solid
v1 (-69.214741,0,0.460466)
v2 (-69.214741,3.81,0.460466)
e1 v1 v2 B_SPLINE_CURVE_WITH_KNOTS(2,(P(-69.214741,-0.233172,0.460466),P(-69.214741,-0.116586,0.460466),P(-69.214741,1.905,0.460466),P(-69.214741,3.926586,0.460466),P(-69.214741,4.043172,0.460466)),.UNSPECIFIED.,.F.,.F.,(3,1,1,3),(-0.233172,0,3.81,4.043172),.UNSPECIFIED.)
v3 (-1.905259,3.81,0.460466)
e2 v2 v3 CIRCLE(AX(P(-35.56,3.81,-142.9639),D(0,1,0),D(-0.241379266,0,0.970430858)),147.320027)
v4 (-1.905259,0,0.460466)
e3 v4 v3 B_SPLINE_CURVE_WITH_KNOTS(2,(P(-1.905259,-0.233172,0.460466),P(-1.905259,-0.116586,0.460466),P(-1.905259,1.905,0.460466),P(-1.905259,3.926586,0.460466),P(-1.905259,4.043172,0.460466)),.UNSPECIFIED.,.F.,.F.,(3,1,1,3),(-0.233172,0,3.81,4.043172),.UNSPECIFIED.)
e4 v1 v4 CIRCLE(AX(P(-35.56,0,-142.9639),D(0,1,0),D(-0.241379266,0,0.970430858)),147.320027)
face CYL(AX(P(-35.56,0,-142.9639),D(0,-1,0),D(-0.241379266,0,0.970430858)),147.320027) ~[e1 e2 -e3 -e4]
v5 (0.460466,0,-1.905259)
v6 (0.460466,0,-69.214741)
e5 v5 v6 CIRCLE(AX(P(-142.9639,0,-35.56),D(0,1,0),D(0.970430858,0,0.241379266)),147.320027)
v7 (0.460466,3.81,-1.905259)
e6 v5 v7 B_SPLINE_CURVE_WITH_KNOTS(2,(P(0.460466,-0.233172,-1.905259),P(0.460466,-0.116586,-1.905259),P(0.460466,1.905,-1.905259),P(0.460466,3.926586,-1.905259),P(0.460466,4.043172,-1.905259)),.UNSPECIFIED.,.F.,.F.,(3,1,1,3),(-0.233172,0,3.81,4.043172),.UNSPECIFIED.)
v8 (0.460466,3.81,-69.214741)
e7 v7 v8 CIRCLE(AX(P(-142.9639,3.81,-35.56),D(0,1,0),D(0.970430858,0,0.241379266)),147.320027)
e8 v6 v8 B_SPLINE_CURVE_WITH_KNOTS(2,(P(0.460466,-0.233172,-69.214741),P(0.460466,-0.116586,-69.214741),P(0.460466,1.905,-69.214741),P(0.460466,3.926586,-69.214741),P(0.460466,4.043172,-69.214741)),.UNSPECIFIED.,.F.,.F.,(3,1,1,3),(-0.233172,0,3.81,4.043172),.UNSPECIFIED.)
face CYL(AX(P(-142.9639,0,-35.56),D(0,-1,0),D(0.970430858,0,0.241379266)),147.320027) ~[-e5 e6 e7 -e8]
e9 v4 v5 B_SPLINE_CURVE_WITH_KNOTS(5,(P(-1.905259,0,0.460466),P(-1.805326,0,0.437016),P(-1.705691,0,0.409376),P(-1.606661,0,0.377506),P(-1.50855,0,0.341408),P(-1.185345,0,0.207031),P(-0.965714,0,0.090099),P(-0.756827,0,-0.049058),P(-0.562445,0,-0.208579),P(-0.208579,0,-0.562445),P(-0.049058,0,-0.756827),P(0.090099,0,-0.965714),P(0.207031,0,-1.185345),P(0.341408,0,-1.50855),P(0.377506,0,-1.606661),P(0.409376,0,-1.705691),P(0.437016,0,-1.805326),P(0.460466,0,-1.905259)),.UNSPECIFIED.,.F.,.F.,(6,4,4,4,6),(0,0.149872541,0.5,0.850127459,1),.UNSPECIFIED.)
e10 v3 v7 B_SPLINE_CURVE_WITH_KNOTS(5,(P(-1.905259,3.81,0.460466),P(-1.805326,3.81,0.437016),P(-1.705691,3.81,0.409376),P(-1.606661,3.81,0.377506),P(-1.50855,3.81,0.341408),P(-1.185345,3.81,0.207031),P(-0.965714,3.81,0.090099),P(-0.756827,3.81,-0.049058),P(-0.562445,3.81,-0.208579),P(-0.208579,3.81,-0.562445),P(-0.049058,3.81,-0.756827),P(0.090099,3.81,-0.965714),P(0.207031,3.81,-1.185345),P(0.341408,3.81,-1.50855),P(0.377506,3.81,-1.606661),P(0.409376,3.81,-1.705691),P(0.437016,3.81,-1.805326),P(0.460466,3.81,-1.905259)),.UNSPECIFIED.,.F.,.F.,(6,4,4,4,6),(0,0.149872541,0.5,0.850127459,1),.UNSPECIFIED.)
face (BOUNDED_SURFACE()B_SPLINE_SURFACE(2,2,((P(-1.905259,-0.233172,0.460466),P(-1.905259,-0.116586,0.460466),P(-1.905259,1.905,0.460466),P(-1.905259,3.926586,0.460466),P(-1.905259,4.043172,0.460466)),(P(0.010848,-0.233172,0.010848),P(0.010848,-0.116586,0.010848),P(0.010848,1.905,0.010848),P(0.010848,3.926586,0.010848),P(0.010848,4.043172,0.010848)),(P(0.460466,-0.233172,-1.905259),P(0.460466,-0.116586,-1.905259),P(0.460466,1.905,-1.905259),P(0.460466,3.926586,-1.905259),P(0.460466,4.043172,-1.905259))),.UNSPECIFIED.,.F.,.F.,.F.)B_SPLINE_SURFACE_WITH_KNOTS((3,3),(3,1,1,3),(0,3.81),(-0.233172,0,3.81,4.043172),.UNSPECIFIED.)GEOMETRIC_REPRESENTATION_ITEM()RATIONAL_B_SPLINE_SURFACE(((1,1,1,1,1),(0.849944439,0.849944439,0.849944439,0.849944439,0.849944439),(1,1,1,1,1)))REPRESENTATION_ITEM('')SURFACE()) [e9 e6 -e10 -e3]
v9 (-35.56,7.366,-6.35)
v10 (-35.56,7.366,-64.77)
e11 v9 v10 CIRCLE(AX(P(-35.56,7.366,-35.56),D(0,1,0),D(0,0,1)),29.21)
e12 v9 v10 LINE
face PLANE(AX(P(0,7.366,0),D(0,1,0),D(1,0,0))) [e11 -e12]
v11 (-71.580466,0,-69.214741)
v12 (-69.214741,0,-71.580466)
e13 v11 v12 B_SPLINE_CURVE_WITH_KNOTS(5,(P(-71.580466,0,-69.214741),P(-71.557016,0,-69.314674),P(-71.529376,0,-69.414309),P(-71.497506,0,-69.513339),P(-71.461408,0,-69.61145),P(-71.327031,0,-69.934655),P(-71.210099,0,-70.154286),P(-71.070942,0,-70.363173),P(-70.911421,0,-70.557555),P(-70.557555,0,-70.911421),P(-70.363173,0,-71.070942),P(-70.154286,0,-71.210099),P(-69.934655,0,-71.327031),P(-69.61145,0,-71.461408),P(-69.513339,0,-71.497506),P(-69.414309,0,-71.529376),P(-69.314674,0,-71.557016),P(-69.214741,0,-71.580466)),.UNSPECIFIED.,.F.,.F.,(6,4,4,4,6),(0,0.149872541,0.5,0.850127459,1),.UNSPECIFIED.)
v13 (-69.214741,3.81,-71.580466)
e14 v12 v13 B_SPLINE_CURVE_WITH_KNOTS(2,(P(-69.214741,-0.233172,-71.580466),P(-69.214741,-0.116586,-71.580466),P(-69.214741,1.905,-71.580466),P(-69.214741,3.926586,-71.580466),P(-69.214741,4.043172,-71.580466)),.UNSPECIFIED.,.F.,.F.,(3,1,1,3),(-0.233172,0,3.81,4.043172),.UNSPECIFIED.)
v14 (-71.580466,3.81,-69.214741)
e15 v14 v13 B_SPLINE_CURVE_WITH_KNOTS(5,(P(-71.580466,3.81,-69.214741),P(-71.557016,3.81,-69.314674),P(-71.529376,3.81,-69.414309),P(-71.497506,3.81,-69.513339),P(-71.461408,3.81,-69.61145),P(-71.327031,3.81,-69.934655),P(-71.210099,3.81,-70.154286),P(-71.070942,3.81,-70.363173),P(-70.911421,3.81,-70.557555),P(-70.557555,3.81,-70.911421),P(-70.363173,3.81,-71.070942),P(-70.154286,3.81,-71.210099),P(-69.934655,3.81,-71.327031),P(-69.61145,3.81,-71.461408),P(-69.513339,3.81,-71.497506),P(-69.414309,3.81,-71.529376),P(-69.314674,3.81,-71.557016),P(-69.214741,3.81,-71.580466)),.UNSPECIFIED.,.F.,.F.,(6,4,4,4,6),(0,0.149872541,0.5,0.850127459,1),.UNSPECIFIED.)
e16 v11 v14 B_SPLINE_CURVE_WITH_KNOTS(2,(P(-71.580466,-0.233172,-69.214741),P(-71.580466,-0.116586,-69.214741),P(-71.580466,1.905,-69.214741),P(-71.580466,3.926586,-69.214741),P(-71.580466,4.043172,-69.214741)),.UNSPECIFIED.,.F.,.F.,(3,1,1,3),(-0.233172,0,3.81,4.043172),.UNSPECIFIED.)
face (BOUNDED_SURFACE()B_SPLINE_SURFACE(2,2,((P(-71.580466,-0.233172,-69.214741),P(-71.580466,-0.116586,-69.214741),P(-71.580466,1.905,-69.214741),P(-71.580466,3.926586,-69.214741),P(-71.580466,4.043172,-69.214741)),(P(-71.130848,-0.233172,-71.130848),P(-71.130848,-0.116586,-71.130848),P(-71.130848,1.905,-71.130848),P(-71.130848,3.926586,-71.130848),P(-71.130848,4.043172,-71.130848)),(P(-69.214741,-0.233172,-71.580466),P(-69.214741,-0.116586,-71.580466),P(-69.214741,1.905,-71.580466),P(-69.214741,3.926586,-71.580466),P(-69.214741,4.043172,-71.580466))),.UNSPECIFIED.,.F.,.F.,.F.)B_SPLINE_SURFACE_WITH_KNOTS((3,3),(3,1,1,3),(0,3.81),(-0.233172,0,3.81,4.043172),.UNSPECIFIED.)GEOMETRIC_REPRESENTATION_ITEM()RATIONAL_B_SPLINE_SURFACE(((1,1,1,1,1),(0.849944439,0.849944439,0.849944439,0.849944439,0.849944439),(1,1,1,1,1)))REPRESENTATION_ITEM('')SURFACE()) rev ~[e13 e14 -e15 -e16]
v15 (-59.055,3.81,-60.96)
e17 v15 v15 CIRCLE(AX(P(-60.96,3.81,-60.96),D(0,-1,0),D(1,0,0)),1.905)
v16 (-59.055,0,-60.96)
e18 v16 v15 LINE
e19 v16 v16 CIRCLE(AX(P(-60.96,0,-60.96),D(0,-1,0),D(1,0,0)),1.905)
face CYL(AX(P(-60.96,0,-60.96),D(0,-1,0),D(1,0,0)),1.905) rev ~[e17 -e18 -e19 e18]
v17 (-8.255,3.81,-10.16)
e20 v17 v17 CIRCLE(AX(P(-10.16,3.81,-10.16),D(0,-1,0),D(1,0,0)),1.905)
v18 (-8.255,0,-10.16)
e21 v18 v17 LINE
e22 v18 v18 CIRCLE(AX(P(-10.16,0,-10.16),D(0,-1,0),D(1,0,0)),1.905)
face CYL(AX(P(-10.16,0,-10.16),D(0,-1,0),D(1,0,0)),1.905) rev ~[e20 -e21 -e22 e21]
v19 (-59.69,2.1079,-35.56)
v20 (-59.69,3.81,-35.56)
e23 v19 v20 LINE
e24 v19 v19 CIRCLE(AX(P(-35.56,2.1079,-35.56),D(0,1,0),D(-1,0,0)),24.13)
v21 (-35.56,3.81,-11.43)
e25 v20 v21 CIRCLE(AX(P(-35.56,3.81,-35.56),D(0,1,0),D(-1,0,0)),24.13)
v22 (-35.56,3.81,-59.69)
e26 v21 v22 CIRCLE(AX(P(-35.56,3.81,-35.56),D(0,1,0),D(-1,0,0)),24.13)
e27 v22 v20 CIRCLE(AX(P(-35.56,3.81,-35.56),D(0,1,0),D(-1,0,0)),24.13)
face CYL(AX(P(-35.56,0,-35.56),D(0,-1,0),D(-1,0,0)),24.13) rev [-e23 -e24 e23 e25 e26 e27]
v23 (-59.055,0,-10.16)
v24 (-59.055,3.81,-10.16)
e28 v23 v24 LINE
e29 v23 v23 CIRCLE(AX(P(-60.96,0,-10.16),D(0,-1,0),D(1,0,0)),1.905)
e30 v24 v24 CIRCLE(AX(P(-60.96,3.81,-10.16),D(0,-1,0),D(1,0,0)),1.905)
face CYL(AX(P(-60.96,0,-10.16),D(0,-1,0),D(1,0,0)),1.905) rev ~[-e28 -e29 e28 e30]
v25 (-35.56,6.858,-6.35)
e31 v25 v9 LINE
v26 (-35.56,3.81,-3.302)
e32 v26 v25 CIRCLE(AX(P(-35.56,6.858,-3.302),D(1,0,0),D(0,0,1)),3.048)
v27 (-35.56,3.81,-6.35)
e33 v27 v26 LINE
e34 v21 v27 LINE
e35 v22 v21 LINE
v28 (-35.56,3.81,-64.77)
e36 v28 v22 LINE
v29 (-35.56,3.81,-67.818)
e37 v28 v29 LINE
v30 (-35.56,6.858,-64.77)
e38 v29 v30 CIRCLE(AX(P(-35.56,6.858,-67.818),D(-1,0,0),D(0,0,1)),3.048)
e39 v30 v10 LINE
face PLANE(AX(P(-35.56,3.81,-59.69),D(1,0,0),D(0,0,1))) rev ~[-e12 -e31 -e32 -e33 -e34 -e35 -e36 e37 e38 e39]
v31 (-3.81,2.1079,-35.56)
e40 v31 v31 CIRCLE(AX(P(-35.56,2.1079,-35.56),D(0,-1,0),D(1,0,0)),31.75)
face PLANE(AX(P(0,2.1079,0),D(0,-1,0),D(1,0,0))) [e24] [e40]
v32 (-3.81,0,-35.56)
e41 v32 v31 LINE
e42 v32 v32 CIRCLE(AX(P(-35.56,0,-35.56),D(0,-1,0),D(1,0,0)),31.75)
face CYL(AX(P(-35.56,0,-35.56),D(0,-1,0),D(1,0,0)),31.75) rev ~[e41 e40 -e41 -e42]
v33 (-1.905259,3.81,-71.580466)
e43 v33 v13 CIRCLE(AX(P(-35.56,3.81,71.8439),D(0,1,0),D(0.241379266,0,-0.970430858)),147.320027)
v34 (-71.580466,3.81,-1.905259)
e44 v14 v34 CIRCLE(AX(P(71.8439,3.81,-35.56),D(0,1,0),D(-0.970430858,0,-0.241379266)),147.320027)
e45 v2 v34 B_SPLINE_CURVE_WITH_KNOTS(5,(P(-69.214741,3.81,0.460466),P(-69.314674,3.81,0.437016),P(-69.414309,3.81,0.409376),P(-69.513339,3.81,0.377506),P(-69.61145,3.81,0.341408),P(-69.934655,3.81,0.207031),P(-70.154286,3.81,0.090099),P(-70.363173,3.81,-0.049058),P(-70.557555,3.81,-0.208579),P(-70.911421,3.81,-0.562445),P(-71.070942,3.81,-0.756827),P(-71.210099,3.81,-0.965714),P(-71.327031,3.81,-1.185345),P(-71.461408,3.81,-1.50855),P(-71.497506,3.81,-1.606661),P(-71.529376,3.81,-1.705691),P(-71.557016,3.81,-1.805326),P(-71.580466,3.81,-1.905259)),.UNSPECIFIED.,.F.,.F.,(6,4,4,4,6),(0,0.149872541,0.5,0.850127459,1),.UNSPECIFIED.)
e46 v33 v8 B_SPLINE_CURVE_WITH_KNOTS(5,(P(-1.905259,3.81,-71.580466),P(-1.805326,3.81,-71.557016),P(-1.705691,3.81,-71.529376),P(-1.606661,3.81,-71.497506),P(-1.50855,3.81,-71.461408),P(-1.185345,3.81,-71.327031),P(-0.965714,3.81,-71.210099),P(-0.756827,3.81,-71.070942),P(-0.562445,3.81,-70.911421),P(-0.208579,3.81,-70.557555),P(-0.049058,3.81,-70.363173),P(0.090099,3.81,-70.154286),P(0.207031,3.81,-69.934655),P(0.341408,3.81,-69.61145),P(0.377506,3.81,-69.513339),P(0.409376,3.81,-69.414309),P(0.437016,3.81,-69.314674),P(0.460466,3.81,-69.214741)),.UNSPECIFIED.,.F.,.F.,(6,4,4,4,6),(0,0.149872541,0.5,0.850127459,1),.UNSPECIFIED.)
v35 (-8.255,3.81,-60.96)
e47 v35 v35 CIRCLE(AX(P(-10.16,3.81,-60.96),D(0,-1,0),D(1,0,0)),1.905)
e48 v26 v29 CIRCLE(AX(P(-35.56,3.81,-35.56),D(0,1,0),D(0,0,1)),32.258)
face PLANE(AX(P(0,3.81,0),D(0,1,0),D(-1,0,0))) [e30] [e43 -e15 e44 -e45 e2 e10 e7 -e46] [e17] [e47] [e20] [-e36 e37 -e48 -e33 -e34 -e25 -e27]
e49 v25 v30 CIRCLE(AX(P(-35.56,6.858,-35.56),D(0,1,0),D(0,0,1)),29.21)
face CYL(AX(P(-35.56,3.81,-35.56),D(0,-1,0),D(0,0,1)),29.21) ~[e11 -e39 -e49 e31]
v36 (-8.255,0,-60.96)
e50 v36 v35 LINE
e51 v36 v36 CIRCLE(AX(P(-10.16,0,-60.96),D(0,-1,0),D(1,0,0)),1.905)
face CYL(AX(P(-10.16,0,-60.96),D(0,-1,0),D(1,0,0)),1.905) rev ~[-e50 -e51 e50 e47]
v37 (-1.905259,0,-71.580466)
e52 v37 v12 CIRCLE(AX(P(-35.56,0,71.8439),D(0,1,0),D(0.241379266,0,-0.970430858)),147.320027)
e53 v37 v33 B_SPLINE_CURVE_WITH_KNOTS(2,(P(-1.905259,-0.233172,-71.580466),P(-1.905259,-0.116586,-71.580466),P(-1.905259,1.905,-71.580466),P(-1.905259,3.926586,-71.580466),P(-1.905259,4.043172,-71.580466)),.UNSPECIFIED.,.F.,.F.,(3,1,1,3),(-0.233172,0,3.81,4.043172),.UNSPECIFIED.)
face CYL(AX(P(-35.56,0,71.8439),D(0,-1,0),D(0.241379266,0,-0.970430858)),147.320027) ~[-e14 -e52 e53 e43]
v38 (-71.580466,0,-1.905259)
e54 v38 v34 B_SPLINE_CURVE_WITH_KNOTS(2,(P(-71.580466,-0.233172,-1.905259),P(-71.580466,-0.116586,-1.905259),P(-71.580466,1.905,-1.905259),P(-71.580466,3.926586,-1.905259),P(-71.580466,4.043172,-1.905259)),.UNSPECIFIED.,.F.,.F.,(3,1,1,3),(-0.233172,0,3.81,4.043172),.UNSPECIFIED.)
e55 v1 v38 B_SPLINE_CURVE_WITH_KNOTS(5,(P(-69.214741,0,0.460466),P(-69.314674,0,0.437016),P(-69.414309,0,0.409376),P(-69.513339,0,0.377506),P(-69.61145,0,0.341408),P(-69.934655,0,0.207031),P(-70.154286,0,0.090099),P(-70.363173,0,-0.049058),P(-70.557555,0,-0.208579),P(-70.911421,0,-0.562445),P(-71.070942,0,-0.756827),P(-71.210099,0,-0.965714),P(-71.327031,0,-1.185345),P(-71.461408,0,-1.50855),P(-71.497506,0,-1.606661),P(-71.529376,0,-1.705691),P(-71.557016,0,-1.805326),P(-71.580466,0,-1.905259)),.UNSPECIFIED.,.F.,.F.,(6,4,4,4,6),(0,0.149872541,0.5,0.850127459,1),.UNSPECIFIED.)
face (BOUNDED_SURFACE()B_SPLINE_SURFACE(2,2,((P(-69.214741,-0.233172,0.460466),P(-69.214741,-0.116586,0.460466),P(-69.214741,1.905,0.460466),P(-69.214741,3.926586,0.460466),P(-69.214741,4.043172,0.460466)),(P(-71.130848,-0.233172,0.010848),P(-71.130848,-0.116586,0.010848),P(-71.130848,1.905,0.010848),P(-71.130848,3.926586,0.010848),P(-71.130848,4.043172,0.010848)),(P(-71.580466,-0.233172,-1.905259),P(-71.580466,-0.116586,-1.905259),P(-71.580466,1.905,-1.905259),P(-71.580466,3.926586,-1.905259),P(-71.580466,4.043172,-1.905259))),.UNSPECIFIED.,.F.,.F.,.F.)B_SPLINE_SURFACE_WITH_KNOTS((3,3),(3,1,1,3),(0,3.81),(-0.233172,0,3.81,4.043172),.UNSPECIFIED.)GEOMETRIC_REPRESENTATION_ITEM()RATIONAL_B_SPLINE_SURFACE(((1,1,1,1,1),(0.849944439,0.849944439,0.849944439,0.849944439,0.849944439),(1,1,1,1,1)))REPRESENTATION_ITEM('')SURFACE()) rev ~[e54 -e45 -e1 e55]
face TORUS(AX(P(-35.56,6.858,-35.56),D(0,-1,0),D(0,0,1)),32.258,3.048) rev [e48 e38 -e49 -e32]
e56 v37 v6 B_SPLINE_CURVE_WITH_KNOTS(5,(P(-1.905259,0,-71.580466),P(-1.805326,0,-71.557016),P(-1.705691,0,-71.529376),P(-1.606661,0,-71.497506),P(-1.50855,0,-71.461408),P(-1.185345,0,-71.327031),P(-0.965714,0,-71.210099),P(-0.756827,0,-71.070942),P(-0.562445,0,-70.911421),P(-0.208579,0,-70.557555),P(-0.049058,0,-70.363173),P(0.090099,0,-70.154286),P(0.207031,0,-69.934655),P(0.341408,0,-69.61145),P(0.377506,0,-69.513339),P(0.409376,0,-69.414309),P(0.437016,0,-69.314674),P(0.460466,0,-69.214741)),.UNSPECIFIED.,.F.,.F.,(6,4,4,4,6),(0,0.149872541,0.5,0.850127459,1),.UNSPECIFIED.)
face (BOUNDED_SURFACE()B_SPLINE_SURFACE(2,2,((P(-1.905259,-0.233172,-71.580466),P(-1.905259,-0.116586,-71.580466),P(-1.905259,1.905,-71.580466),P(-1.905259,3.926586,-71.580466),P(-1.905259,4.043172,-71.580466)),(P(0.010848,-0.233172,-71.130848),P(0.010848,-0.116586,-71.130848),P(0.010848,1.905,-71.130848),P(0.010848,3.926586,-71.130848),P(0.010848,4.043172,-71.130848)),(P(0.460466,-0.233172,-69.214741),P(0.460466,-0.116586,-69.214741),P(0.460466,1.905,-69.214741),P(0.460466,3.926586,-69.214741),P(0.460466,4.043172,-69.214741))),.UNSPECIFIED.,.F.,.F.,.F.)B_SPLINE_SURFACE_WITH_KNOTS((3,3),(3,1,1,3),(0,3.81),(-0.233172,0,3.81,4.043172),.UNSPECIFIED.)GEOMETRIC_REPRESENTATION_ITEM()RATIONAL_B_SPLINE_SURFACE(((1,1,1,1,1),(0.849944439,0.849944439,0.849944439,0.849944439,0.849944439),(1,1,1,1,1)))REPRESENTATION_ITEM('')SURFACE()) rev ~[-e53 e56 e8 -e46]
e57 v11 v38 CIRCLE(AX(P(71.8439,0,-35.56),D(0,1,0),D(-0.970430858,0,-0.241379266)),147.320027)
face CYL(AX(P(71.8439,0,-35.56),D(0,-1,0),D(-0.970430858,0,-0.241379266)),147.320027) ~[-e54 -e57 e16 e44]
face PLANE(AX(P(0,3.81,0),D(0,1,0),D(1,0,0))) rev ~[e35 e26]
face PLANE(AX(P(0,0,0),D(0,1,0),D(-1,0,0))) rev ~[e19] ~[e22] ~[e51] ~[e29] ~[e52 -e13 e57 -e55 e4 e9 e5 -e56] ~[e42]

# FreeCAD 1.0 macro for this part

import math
import FreeCAD as App
import Part
import Sketcher
Q = App.Units.Quantity


def edges_at(feature, points):
    """Names of the edges that pass closest to the given points."""
    edges = feature.Shape.Edges
    near = lambda p: min(range(len(edges)), key=lambda i: edges[i].distToShape(Part.Vertex(*p))[0])
    return sorted({f"Edge{near(p) + 1}" for p in points})

doc = App.newDocument("Part")
body = doc.addObject("PartDesign::Body", "Body")

# Sketch on XZ plane
sketch1 = doc.addObject("Sketcher::SketchObject", "Sketch")
body.addObject(sketch1)
sketch1.AttachmentSupport = (doc.XZ_Plane, [""])
sketch1.MapMode = "FlatFace"
sketch1.addGeometry([
    Part.ArcOfCircle(Part.Circle(App.Vector(-36, -143, 0), App.Vector(0, 0, 1), 147), math.radians(76), math.radians(104)),  # 0
    Part.ArcOfCircle(Part.Circle(App.Vector(-143, -36, 0), App.Vector(0, 0, 1), 147), math.radians(-14), math.radians(14)),  # 1
    Part.ArcOfCircle(Part.Circle(App.Vector(-36, 72, 0), App.Vector(0, 0, 1), 147), math.radians(-104), math.radians(-76)),  # 2
    Part.ArcOfCircle(Part.Circle(App.Vector(72, -36, 0), App.Vector(0, 0, 1), 147), math.radians(166), math.radians(194)),  # 3
    Part.Circle(App.Vector(-36, -36, 0), App.Vector(0, 0, 1), 24),  # 4
], False)
sketch1.addConstraint([
    Sketcher.Constraint("Coincident", 0, 1, 1, 2),
    Sketcher.Constraint("Coincident", 1, 1, 2, 2),
    Sketcher.Constraint("Coincident", 2, 1, 3, 2),
    Sketcher.Constraint("Coincident", 3, 1, 0, 2),
    Sketcher.Constraint("Coincident", 0, 1, -1, 1),
    Sketcher.Constraint("Equal", 0, 1),
    Sketcher.Constraint("Equal", 1, 2),
    Sketcher.Constraint("Equal", 2, 3),
    Sketcher.Constraint("PointOnObject", 1, 1, -2),
    Sketcher.Constraint("PointOnObject", 3, 1, -1),
    Sketcher.Constraint("Horizontal", 1, 3, 3, 3),
    Sketcher.Constraint("Horizontal", 3, 3, 4, 3),
    Sketcher.Constraint("Horizontal", 1, 1, 2, 1),
    Sketcher.Constraint("Vertical", 2, 3, 4, 3),
    Sketcher.Constraint("Diameter", 4, Q("1.9 in")),
    Sketcher.Constraint("Radius", 0, Q("5.8 in")),
    Sketcher.Constraint("DistanceX", 0, 3, -1, 1, Q("1.4 in")),
    Sketcher.Constraint("DistanceY", 1, 3, -1, 1, Q("1.4 in")),
])
pad1 = doc.addObject("PartDesign::Pad", "Pad")
body.addObject(pad1)
pad1.Profile = sketch1
pad1.Length = Q("0.15 in")
pad1.Reversed = True
doc.recompute()

fillet = doc.addObject("PartDesign::Fillet", "Fillet")
body.addObject(fillet)
fillet.Base = (pad1, edges_at(pad1, [
    (0, 1.905, 0),
    (0, 1.905, -71.12),
    (-71.12, 1.905, 0),
    (-71.12, 1.905, -71.12),
]))
fillet.Radius = Q("0.125 in")

# Sketch on XZ plane
sketch2 = doc.addObject("Sketcher::SketchObject", "Sketch001")
body.addObject(sketch2)
sketch2.AttachmentSupport = (doc.XZ_Plane, [""])
sketch2.MapMode = "FlatFace"
sketch2.addGeometry([
    Part.Circle(App.Vector(-36, -36, 0), App.Vector(0, 0, 1), 32),
    Part.Circle(App.Vector(-36, -36, 0), App.Vector(0, 0, 1), 24),
], False)
sketch2.addConstraint([
    Sketcher.Constraint("Coincident", 1, 3, 0, 3),
    Sketcher.Constraint("Diameter", 0, Q("2.5 in")),
    Sketcher.Constraint("Diameter", 1, Q("1.9 in")),
    Sketcher.Constraint("DistanceX", 0, 3, -1, 1, Q("1.4 in")),
    Sketcher.Constraint("DistanceY", 0, 3, -1, 1, Q("1.4 in")),
])
pocket1 = doc.addObject("PartDesign::Pocket", "Pocket")
body.addObject(pocket1)
pocket1.Profile = sketch2
pocket1.Length = Q("0.0829882 in")

# Sketch on XZ plane
sketch3 = doc.addObject("Sketcher::SketchObject", "Sketch002")
body.addObject(sketch3)
sketch3.AttachmentSupport = (doc.XZ_Plane, [""])
sketch3.MapMode = "FlatFace"
sketch3.addGeometry([
    Part.Circle(App.Vector(-61, -10.2, 0), App.Vector(0, 0, 1), 1.9),
    Part.Circle(App.Vector(-10.2, -10.2, 0), App.Vector(0, 0, 1), 1.9),
    Part.Circle(App.Vector(-61, -61, 0), App.Vector(0, 0, 1), 1.9),
    Part.Circle(App.Vector(-10.2, -61, 0), App.Vector(0, 0, 1), 1.9),
], False)
sketch3.addConstraint([
    Sketcher.Constraint("Equal", 0, 1),
    Sketcher.Constraint("Equal", 1, 2),
    Sketcher.Constraint("Equal", 2, 3),
    Sketcher.Constraint("Horizontal", 0, 3, 1, 3),
    Sketcher.Constraint("Horizontal", 2, 3, 3, 3),
    Sketcher.Constraint("Vertical", 0, 3, 2, 3),
    Sketcher.Constraint("Vertical", 1, 3, 3, 3),
    Sketcher.Constraint("Diameter", 0, Q("0.15 in")),
    Sketcher.Constraint("DistanceX", 0, 3, 1, 3, Q("2 in")),
    Sketcher.Constraint("DistanceY", 2, 3, 0, 3, Q("2 in")),
    Sketcher.Constraint("DistanceX", 0, 3, -1, 1, Q("2.4 in")),
    Sketcher.Constraint("DistanceY", 0, 3, -1, 1, Q("0.4 in")),
])
pocket2 = doc.addObject("PartDesign::Pocket", "Pocket001")
body.addObject(pocket2)
pocket2.Profile = sketch3
pocket2.Length = Q("1 in")

# Sketch on XZ plane
sketch4 = doc.addObject("Sketcher::SketchObject", "Sketch003")
body.addObject(sketch4)
sketch4.AttachmentSupport = (doc.XZ_Plane, [""])
sketch4.MapMode = "FlatFace"
sketch4.AttachmentOffset = App.Placement(App.Vector(0, 0, -0.15 * 25.4), App.Rotation())
sketch4.addGeometry([
    Part.ArcOfCircle(Part.Circle(App.Vector(-36, -36, 0), App.Vector(0, 0, 1), 29), math.radians(-90), math.radians(90)),
    Part.LineSegment(App.Vector(-36, -65, 0), App.Vector(-36, -6, 0)),
], False)
sketch4.addConstraint([
    Sketcher.Constraint("Coincident", 0, 1, 1, 1),
    Sketcher.Constraint("Coincident", 1, 2, 0, 2),
    Sketcher.Constraint("Vertical", 1),
    Sketcher.Constraint("Radius", 0, Q("1.15 in")),
    Sketcher.Constraint("DistanceX", 0, 3, -1, 1, Q("1.4 in")),
    Sketcher.Constraint("DistanceY", 0, 3, -1, 1, Q("1.4 in")),
    Sketcher.Constraint("DistanceX", 0, 1, -1, 1, Q("1.4 in")),
])
pad2 = doc.addObject("PartDesign::Pad", "Pad001")
body.addObject(pad2)
pad2.Profile = sketch4
pad2.Length = Q("0.14 in")
pad2.Reversed = True
doc.recompute()

fillet2 = doc.addObject("PartDesign::Fillet", "Fillet001")
body.addObject(fillet2)
fillet2.Base = (pad2, edges_at(pad2, [(-6.35, 3.81, -35.56)]))
fillet2.Radius = Q("0.12 in")

doc.recompute()
